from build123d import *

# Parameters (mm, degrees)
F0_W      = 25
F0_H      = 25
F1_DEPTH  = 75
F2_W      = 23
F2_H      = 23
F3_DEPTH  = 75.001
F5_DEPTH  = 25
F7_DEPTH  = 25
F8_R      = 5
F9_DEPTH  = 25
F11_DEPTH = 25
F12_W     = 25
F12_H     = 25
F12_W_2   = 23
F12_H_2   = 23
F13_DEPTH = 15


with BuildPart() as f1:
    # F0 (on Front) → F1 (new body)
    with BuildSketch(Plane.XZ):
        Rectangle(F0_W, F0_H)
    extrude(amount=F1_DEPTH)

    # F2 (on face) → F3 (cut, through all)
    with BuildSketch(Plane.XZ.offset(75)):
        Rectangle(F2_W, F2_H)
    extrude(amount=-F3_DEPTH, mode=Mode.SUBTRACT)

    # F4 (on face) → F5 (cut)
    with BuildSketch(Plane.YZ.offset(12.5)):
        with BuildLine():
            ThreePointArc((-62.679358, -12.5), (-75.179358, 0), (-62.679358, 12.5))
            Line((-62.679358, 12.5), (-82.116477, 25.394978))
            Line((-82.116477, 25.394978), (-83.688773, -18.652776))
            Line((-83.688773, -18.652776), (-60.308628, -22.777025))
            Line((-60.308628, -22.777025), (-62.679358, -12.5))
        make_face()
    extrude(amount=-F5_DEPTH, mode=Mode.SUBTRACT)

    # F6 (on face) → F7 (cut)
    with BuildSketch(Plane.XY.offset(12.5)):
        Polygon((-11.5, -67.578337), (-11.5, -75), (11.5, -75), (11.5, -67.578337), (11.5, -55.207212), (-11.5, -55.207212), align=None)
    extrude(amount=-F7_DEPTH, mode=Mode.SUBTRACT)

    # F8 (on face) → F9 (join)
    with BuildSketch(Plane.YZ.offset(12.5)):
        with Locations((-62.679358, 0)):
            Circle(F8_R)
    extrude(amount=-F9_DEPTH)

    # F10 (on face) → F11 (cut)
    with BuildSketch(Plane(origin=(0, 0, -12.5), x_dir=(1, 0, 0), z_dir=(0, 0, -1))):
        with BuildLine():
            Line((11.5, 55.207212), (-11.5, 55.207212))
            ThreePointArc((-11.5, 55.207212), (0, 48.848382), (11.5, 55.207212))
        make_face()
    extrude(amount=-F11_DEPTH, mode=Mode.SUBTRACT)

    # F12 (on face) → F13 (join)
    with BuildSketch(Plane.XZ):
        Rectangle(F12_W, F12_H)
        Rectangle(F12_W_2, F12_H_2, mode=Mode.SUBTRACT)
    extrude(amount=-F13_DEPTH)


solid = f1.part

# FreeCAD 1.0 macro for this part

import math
import FreeCAD as App
import Part
import Sketcher

doc = App.newDocument("Part")
body = doc.addObject("PartDesign::Body", "Body")

# Sketch on XZ plane
sketch1 = doc.addObject("Sketcher::SketchObject", "Sketch")
body.addObject(sketch1)
sketch1.AttachmentSupport = (doc.XZ_Plane, [""])
sketch1.MapMode = "FlatFace"
sketch1.addGeometry([
    Part.LineSegment(App.Vector(-12, 12, 0), App.Vector(-12, -12, 0)),
    Part.LineSegment(App.Vector(-12, -12, 0), App.Vector(12, -12, 0)),
    Part.LineSegment(App.Vector(12, -12, 0), App.Vector(12, 12, 0)),
    Part.LineSegment(App.Vector(12, 12, 0), App.Vector(-12, 12, 0)),
], False)
sketch1.addConstraint([
    Sketcher.Constraint("Coincident", 0, 2, 1, 1),
    Sketcher.Constraint("Coincident", 1, 2, 2, 1),
    Sketcher.Constraint("Coincident", 2, 2, 3, 1),
    Sketcher.Constraint("Coincident", 3, 2, 0, 1),
    Sketcher.Constraint("Vertical", 0),
    Sketcher.Constraint("Horizontal", 1),
    Sketcher.Constraint("Vertical", 2),
    Sketcher.Constraint("Horizontal", 3),
    Sketcher.Constraint("Symmetric", 0, 2, 2, 2, -1, 1),
    Sketcher.Constraint("Equal", 3, 0),
    Sketcher.Constraint("DistanceX", 1, 1, 1, 2, 25.0),
])
pad1 = doc.addObject("PartDesign::Pad", "Pad")
body.addObject(pad1)
pad1.Profile = sketch1
pad1.Length = 75

# Sketch on XZ plane
sketch2 = doc.addObject("Sketcher::SketchObject", "Sketch001")
body.addObject(sketch2)
sketch2.AttachmentSupport = (doc.XZ_Plane, [""])
sketch2.MapMode = "FlatFace"
sketch2.AttachmentOffset = App.Placement(App.Vector(0, 0, 75), App.Rotation())
sketch2.addGeometry([
    Part.LineSegment(App.Vector(-12, 12, 0), App.Vector(-12, -12, 0)),
    Part.LineSegment(App.Vector(-12, -12, 0), App.Vector(12, -12, 0)),
    Part.LineSegment(App.Vector(12, -12, 0), App.Vector(12, 12, 0)),
    Part.LineSegment(App.Vector(12, 12, 0), App.Vector(-12, 12, 0)),
], False)
sketch2.addConstraint([
    Sketcher.Constraint("Coincident", 0, 2, 1, 1),
    Sketcher.Constraint("Coincident", 1, 2, 2, 1),
    Sketcher.Constraint("Coincident", 2, 2, 3, 1),
    Sketcher.Constraint("Coincident", 3, 2, 0, 1),
    Sketcher.Constraint("Vertical", 0),
    Sketcher.Constraint("Horizontal", 1),
    Sketcher.Constraint("Vertical", 2),
    Sketcher.Constraint("Horizontal", 3),
    Sketcher.Constraint("Symmetric", 0, 2, 2, 2, -1, 1),
    Sketcher.Constraint("Equal", 3, 0),
    Sketcher.Constraint("DistanceX", 1, 1, 1, 2, 23.0),
])
pocket1 = doc.addObject("PartDesign::Pocket", "Pocket")
body.addObject(pocket1)
pocket1.Profile = sketch2
pocket1.Type = "ThroughAll"

# Sketch on YZ plane
sketch3 = doc.addObject("Sketcher::SketchObject", "Sketch002")
body.addObject(sketch3)
sketch3.AttachmentSupport = (doc.YZ_Plane, [""])
sketch3.MapMode = "FlatFace"
sketch3.AttachmentOffset = App.Placement(App.Vector(0, 0, 12.5), App.Rotation())
sketch3.addGeometry([
    Part.ArcOfCircle(Part.Circle(App.Vector(-63, 0, 0), App.Vector(0, 0, 1), 12), math.radians(90), math.radians(270)),  # 0
    Part.LineSegment(App.Vector(-63, 12, 0), App.Vector(-82, 25, 0)),  # 1
    Part.LineSegment(App.Vector(-82, 25, 0), App.Vector(-84, -19, 0)),  # 2
    Part.LineSegment(App.Vector(-84, -19, 0), App.Vector(-60, -23, 0)),  # 3
    Part.LineSegment(App.Vector(-60, -23, 0), App.Vector(-63, -12, 0)),  # 4
], False)
sketch3.addConstraint([
    Sketcher.Constraint("Coincident", 0, 1, 1, 1),
    Sketcher.Constraint("Coincident", 1, 2, 2, 1),
    Sketcher.Constraint("Coincident", 2, 2, 3, 1),
    Sketcher.Constraint("Coincident", 3, 2, 4, 1),
    Sketcher.Constraint("Coincident", 4, 2, 0, 2),
    Sketcher.Constraint("Symmetric", 0, 1, 4, 2, -1),
    Sketcher.Constraint("Radius", 0, 12.5),
    Sketcher.Constraint("DistanceX", 1, 2, 0, 1, 19.437119),
    Sketcher.Constraint("DistanceX", 1, 2, 0, 3, 19.437119),
    Sketcher.Constraint("DistanceX", 0, 3, 3, 2, 2.37073),
    Sketcher.Constraint("DistanceY", 3, 2, 2, 2, 4.124249),
    Sketcher.Constraint("Distance", 1, 23.325567),
    Sketcher.Constraint("Distance", 2, 44.075807),
    Sketcher.Constraint("Distance", 3, 23.741116),
    Sketcher.Constraint("DistanceX", 0, 3, -1, 1, 62.679358),
])
pocket2 = doc.addObject("PartDesign::Pocket", "Pocket001")
body.addObject(pocket2)
pocket2.Profile = sketch3
pocket2.Length = 25

# Sketch on XY plane
sketch4 = doc.addObject("Sketcher::SketchObject", "Sketch003")
body.addObject(sketch4)
sketch4.AttachmentSupport = (doc.XY_Plane, [""])
sketch4.MapMode = "FlatFace"
sketch4.AttachmentOffset = App.Placement(App.Vector(0, 0, 12.5), App.Rotation())
sketch4.addGeometry([
    Part.LineSegment(App.Vector(-12, -75, 0), App.Vector(12, -75, 0)),
    Part.LineSegment(App.Vector(12, -75, 0), App.Vector(12, -55, 0)),
    Part.LineSegment(App.Vector(12, -55, 0), App.Vector(-12, -55, 0)),
    Part.LineSegment(App.Vector(-12, -55, 0), App.Vector(-12, -75, 0)),
], False)
sketch4.addConstraint([
    Sketcher.Constraint("Coincident", 0, 2, 1, 1),
    Sketcher.Constraint("Coincident", 1, 2, 2, 1),
    Sketcher.Constraint("Coincident", 2, 2, 3, 1),
    Sketcher.Constraint("Coincident", 3, 2, 0, 1),
    Sketcher.Constraint("Horizontal", 0),
    Sketcher.Constraint("Vertical", 1),
    Sketcher.Constraint("Horizontal", 2),
    Sketcher.Constraint("Vertical", 3),
    Sketcher.Constraint("DistanceX", 0, 1, 0, 2, 23.0),
    Sketcher.Constraint("DistanceY", 0, 2, -1, 1, 75.0),
    Sketcher.Constraint("DistanceX", -1, 1, 0, 2, 11.5),
    Sketcher.Constraint("DistanceY", 1, 1, 1, 2, 19.792788),
])
pocket3 = doc.addObject("PartDesign::Pocket", "Pocket002")
body.addObject(pocket3)
pocket3.Profile = sketch4
pocket3.Length = 25

# Sketch on YZ plane
sketch5 = doc.addObject("Sketcher::SketchObject", "Sketch004")
body.addObject(sketch5)
sketch5.AttachmentSupport = (doc.YZ_Plane, [""])
sketch5.MapMode = "FlatFace"
sketch5.AttachmentOffset = App.Placement(App.Vector(0, 0, 12.5), App.Rotation())
sketch5.addGeometry(Part.Circle(App.Vector(-63, 0, 0), App.Vector(0, 0, 1), 5), False)
sketch5.addConstraint([
    Sketcher.Constraint("PointOnObject", 0, 3, -1),
    Sketcher.Constraint("Diameter", 0, 10.0),
    Sketcher.Constraint("DistanceX", 0, 3, -1, 1, 62.679358),
])
pad2 = doc.addObject("PartDesign::Pad", "Pad001")
body.addObject(pad2)
pad2.Profile = sketch5
pad2.Length = 25
pad2.Reversed = True

# Sketch on XY plane
sketch6 = doc.addObject("Sketcher::SketchObject", "Sketch005")
body.addObject(sketch6)
sketch6.AttachmentSupport = (doc.XY_Plane, [""])
sketch6.MapMode = "FlatFace"
sketch6.AttachmentOffset = App.Placement(App.Vector(0, 0, -12.5), App.Rotation())
sketch6.addGeometry([
    Part.LineSegment(App.Vector(12, -55, 0), App.Vector(-12, -55, 0)),
    Part.ArcOfCircle(Part.Circle(App.Vector(0, -62, 0), App.Vector(0, 0, 1), 14), math.radians(32), math.radians(148)),
], False)
sketch6.addConstraint([
    Sketcher.Constraint("Coincident", 0, 1, 1, 1),
    Sketcher.Constraint("Coincident", 1, 2, 0, 2),
    Sketcher.Constraint("Horizontal", 0),
    Sketcher.Constraint("PointOnObject", 1, 3, -2),
    Sketcher.Constraint("DistanceX", 0, 2, 0, 1, 23.0),
    Sketcher.Constraint("Radius", 1, 13.578341),
    Sketcher.Constraint("DistanceY", 0, 1, -1, 1, 55.207212),
])
pocket4 = doc.addObject("PartDesign::Pocket", "Pocket003")
body.addObject(pocket4)
pocket4.Profile = sketch6
pocket4.Length = 25
pocket4.Reversed = True

# Sketch on XZ plane
sketch7 = doc.addObject("Sketcher::SketchObject", "Sketch006")
body.addObject(sketch7)
sketch7.AttachmentSupport = (doc.XZ_Plane, [""])
sketch7.MapMode = "FlatFace"
sketch7.addGeometry([
    Part.LineSegment(App.Vector(-12, 12, 0), App.Vector(-12, -12, 0)),  # 0
    Part.LineSegment(App.Vector(-12, -12, 0), App.Vector(12, -12, 0)),  # 1
    Part.LineSegment(App.Vector(12, -12, 0), App.Vector(12, 12, 0)),  # 2
    Part.LineSegment(App.Vector(12, 12, 0), App.Vector(-12, 12, 0)),  # 3
    Part.LineSegment(App.Vector(12, -12, 0), App.Vector(-12, -12, 0)),  # 4
    Part.LineSegment(App.Vector(-12, -12, 0), App.Vector(-12, 12, 0)),  # 5
    Part.LineSegment(App.Vector(-12, 12, 0), App.Vector(12, 12, 0)),  # 6
    Part.LineSegment(App.Vector(12, 12, 0), App.Vector(12, -12, 0)),  # 7
], False)
sketch7.addConstraint([
    Sketcher.Constraint("Coincident", 0, 2, 1, 1),
    Sketcher.Constraint("Coincident", 1, 2, 2, 1),
    Sketcher.Constraint("Coincident", 2, 2, 3, 1),
    Sketcher.Constraint("Coincident", 3, 2, 0, 1),
    Sketcher.Constraint("Coincident", 4, 2, 5, 1),
    Sketcher.Constraint("Coincident", 5, 2, 6, 1),
    Sketcher.Constraint("Coincident", 6, 2, 7, 1),
    Sketcher.Constraint("Coincident", 7, 2, 4, 1),
    Sketcher.Constraint("Vertical", 0),
    Sketcher.Constraint("Horizontal", 1),
    Sketcher.Constraint("Vertical", 2),
    Sketcher.Constraint("Horizontal", 3),
    Sketcher.Constraint("Horizontal", 4),
    Sketcher.Constraint("Vertical", 5),
    Sketcher.Constraint("Horizontal", 6),
    Sketcher.Constraint("Vertical", 7),
    Sketcher.Constraint("Symmetric", 0, 2, 2, 2, -1, 1),
    Sketcher.Constraint("Symmetric", 4, 2, 6, 2, -1, 1),
    Sketcher.Constraint("Equal", 3, 0),
    Sketcher.Constraint("Equal", 6, 5),
    Sketcher.Constraint("DistanceX", 1, 1, 1, 2, 25.0),
    Sketcher.Constraint("DistanceX", 4, 2, 4, 1, 23.0),
])
pad3 = doc.addObject("PartDesign::Pad", "Pad002")
body.addObject(pad3)
pad3.Profile = sketch7
pad3.Length = 15
pad3.Reversed = True

doc.recompute()
